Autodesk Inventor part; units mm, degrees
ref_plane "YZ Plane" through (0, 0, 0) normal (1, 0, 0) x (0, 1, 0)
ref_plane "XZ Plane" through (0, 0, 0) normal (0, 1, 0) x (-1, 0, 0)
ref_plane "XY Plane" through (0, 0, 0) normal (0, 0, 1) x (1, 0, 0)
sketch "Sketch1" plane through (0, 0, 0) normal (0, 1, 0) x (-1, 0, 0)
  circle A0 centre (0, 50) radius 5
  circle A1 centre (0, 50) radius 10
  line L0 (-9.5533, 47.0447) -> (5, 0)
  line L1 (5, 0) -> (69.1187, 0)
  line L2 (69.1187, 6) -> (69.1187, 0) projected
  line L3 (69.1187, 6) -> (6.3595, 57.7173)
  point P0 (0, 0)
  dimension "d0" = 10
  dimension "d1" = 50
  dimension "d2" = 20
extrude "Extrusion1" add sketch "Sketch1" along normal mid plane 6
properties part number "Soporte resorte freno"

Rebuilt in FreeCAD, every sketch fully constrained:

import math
import FreeCAD as App
import Part
import Sketcher

V = App.Vector
Q = App.Units.Quantity

doc = App.newDocument("Part")
params = doc.addObject("Spreadsheet::Sheet", "Params")
for row, (alias, value) in enumerate([
    ("sketch1_diameter", "10 mm"),
    ("sketch1_radius", "10 mm"),
    ("sketch1_height", "6 mm"),
    ("pad1_length", "6 mm"),
], start=1):
    params.set(f"A{row}", alias)
    params.set(f"B{row}", "=" + value)
    params.setAlias(f"B{row}", alias)

body = doc.addObject("PartDesign::Body", "Body")

# Sketch on XZ plane
sketch1 = body.newObject("Sketcher::SketchObject", "Sketch")
sketch1.AttachmentSupport = (doc.getObject("XZ_Plane"), [""])
sketch1.MapMode = "FlatFace"
sketch1.addGeometry(Part.ArcOfCircle(Part.Circle(V(0, 50, 0), V(0, 0, 1), 10), math.radians(-17), math.radians(129)), False)
sketch1.addGeometry(Part.LineSegment(V(10, 47, 0), V(-5, 0, 0)), False)
sketch1.addGeometry(Part.LineSegment(V(-5, 0, 0), V(-69, 0, 0)), False)
sketch1.addGeometry(Part.LineSegment(V(-69, 0, 0), V(-69, 6, 0)), False)
sketch1.addGeometry(Part.LineSegment(V(-69, 6, 0), V(-6, 58, 0)), False)
sketch1.addGeometry(Part.Circle(V(0, 50, 0), V(0, 0, 1), 5), False)
sketch1.addConstraint(Sketcher.Constraint("Tangent", 0, 1, 1, 1))
sketch1.addConstraint(Sketcher.Constraint("Coincident", 1, 2, 2, 1))
sketch1.addConstraint(Sketcher.Constraint("Coincident", 2, 2, 3, 1))
sketch1.addConstraint(Sketcher.Constraint("Coincident", 3, 2, 4, 1))
sketch1.addConstraint(Sketcher.Constraint("Tangent", 4, 2, 0, 2))
sketch1.addConstraint(Sketcher.Constraint("Horizontal", 2))
sketch1.addConstraint(Sketcher.Constraint("Vertical", 3))
sketch1.addConstraint(Sketcher.Constraint("Coincident", 5, 3, 0, 3))
sketch1.addConstraint(Sketcher.Constraint("PointOnObject", 0, 3, -2))
sketch1.addConstraint(Sketcher.Constraint("PointOnObject", 1, 2, -1))
sketch1.addConstraint(Sketcher.Constraint("Diameter", 5, 10.0))
sketch1.addConstraint(Sketcher.Constraint("Radius", 0, 10.0))
sketch1.addConstraint(Sketcher.Constraint("DistanceY", -1, 1, 0, 3, 50.0))
sketch1.addConstraint(Sketcher.Constraint("DistanceY", 3, 1, 3, 2, 6.0))
sketch1.addConstraint(Sketcher.Constraint("DistanceX", 1, 2, -1, 1, 5.0))
sketch1.addConstraint(Sketcher.Constraint("Angle", 4, Q("39.4905 deg")))
sketch1.setExpression("Constraints[10]", "Params.sketch1_diameter")
sketch1.setExpression("Constraints[11]", "Params.sketch1_radius")
sketch1.setExpression("Constraints[13]", "Params.sketch1_height")
pad1 = body.newObject("PartDesign::Pad", "Pad")
pad1.Profile = sketch1
pad1.setExpression("Length", "Params.pad1_length")
pad1.Midplane = True

doc.recompute()
